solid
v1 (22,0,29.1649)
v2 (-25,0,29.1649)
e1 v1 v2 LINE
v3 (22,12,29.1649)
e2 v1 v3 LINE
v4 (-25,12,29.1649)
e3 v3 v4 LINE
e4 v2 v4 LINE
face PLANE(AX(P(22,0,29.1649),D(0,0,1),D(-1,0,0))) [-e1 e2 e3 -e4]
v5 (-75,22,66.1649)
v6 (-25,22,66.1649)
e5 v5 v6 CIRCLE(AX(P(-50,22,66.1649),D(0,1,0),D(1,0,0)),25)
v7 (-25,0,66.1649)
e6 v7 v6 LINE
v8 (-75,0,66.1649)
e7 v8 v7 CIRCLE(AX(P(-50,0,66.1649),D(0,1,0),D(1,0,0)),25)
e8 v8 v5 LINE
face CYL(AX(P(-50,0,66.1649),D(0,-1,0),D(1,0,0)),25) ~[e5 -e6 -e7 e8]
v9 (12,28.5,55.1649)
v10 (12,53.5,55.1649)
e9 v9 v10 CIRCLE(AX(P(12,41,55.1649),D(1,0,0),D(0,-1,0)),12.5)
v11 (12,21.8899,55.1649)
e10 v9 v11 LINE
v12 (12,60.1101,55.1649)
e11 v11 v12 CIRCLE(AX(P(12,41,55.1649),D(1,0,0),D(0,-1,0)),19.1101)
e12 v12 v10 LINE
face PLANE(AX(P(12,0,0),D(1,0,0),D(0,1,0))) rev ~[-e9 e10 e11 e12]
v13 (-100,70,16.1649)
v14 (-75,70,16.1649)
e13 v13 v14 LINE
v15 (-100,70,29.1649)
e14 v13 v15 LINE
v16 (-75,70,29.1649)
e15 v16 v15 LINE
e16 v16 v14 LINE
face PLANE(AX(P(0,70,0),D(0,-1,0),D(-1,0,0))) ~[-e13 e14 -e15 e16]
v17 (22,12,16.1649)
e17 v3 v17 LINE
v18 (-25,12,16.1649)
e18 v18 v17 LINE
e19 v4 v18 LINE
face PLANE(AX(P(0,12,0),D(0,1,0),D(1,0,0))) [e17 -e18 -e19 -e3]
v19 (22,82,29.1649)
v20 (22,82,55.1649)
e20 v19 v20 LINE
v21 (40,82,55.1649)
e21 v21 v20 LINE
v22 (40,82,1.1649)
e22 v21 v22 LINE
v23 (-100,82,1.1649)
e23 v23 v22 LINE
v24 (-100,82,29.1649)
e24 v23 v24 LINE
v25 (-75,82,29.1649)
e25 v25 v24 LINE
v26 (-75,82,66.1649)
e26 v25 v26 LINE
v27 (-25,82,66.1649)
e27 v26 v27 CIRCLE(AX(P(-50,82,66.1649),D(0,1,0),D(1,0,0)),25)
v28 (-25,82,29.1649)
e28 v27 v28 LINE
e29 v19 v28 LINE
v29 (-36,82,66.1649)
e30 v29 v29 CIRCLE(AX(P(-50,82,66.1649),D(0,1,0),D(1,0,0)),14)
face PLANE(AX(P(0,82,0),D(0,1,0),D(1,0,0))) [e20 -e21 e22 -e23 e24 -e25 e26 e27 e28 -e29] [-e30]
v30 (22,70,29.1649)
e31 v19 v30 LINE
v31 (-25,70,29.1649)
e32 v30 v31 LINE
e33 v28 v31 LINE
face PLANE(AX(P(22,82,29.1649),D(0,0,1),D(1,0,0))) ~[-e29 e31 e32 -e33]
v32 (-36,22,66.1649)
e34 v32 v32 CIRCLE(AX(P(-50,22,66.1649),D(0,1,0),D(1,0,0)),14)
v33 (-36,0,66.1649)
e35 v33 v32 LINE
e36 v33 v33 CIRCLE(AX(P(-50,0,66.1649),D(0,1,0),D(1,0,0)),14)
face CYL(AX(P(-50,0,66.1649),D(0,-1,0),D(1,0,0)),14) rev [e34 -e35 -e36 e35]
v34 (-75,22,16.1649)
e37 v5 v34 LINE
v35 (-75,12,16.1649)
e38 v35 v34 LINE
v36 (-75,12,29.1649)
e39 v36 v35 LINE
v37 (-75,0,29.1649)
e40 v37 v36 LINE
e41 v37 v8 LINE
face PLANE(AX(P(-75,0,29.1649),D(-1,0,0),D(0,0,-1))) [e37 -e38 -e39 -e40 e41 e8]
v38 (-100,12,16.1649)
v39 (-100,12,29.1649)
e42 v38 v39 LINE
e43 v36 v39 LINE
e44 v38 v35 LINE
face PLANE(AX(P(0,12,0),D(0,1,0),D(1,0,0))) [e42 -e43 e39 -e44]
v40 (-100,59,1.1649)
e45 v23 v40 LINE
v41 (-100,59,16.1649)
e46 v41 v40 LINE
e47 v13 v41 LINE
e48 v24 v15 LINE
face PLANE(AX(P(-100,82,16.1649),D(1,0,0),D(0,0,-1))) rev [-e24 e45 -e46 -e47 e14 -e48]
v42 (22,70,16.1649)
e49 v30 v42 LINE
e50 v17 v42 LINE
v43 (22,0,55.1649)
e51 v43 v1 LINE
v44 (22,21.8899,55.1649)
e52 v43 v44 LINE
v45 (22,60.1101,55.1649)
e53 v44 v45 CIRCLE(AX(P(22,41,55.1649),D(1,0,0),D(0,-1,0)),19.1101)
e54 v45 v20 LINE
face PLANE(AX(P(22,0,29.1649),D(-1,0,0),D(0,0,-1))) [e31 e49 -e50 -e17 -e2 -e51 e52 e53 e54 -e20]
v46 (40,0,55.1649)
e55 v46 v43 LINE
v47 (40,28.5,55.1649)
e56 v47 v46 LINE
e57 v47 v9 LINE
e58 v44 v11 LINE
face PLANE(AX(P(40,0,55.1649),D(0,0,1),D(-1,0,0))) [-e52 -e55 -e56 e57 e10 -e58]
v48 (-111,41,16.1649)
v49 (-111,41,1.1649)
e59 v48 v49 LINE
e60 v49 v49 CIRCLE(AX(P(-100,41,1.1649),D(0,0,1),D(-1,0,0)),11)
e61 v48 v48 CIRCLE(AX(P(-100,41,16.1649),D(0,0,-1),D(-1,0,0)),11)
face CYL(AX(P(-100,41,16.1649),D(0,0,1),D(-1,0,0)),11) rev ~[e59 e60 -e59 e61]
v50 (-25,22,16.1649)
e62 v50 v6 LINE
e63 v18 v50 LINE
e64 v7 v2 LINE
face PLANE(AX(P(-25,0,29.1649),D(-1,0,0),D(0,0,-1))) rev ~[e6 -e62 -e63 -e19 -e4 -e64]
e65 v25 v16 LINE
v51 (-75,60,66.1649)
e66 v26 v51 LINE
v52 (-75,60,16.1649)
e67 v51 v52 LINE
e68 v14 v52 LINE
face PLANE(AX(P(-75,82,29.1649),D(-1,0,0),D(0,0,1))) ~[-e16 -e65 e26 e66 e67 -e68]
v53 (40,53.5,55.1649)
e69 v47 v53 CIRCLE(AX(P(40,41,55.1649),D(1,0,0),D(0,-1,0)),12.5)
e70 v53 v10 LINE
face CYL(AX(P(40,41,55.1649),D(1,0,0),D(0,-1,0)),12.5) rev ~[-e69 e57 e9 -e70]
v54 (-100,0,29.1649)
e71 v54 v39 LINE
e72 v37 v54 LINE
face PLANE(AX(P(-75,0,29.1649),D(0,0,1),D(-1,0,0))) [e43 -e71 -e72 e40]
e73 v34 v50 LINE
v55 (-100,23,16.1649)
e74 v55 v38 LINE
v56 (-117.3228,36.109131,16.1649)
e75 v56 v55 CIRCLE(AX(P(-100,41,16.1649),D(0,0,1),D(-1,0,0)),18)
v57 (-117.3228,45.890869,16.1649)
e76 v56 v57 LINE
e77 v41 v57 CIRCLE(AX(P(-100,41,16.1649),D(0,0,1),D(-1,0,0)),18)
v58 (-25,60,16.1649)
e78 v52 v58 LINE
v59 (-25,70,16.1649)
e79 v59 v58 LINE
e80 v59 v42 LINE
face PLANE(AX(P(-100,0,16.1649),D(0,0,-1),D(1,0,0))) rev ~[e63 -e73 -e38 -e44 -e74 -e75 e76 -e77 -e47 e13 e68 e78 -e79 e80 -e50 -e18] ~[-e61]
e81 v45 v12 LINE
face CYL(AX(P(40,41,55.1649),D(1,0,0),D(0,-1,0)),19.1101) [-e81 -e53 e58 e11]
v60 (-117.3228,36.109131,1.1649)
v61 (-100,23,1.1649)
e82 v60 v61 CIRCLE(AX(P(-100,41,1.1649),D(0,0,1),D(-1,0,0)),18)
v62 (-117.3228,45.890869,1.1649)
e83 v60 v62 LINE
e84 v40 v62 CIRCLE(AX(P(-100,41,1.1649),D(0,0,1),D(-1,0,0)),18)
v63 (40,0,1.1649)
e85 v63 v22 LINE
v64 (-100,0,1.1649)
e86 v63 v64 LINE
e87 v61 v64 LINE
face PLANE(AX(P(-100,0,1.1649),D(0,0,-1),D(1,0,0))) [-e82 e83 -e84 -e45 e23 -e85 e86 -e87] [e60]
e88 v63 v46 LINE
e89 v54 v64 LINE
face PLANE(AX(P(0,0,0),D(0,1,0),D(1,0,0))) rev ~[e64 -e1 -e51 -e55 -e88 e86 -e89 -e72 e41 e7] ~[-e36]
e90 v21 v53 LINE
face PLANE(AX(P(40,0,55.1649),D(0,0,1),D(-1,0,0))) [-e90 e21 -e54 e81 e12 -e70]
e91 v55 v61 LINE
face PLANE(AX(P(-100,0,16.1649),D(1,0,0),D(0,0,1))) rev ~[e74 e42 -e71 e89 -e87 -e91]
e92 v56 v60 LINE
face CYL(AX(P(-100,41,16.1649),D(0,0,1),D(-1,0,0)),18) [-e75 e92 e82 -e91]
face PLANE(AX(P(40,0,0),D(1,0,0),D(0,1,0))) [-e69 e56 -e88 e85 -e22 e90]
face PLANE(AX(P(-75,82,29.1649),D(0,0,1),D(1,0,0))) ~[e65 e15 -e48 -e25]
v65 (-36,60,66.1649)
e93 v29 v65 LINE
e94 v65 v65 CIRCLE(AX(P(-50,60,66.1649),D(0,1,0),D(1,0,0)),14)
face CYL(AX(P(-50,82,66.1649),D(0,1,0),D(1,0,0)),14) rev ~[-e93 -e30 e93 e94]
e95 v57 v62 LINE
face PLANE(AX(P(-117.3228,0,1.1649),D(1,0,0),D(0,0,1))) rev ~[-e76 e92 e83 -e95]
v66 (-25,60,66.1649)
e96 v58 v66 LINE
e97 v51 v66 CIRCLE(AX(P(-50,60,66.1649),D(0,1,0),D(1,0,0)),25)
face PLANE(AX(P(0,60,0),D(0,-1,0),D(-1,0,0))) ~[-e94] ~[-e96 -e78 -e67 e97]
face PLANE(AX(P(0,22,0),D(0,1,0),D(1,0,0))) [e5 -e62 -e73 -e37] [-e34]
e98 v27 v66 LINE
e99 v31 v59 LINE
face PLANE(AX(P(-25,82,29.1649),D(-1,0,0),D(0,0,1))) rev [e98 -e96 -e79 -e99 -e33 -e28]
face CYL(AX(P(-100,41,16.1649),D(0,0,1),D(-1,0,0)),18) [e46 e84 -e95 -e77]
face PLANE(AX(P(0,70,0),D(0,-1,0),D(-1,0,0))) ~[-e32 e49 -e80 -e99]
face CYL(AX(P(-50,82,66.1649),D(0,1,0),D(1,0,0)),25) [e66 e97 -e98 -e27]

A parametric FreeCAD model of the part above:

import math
import FreeCAD as App
import Part
import Sketcher
from FreeCAD import Vector
Q = App.Units.Quantity


def add_polygon(sketch, points):
    """Adds a closed chain of lines whose ends are joined by coincident constraints."""
    first, n = sketch.GeometryCount, len(points)
    for a, b in zip(points, points[1:] + points[:1]):
        sketch.addGeometry(Part.LineSegment(App.Vector(*a, 0), App.Vector(*b, 0)), False)
    for i in range(n):
        sketch.addConstraint(Sketcher.Constraint("Coincident", first + i, 2, first + (i + 1) % n, 1))

doc = App.newDocument("Part")
params = doc.addObject("Spreadsheet::Sheet", "Params")
for row, (alias, value) in enumerate([
    ("sketch1_width", "18 mm"),
    ("sketch1_height", "15 mm"),
    ("sketch1_height2", "54 mm"),
    ("pad1_length", "82 mm"),
    ("sketch2_width", "25 mm"),
    ("sketch2_width2", "47 mm"),
    ("sketch2_height", "13 mm"),
    ("pad2_length", "12 mm"),
    ("sketch3_diameter", "28 mm"),
    ("sketch3_radius", "25 mm"),
    ("pad3_length", "22 mm"),
    ("sketch4_radius", "12.5 mm"),
    ("sketch4_radius2", "19.11 mm"),
    ("pad4_length", "28 mm"),
    ("sketch5_radius", "12.5 mm"),
    ("pocket1_length", "28 mm"),
    ("sketch6_radius", "18 mm"),
    ("sketch6_height", "23 mm"),
    ("pocket2_length", "30 mm"),
    ("sketch7_diameter", "22 mm"),
    ("pocket3_length", "25 mm"),
], start=1):
    params.set(f"A{row}", alias)
    params.set(f"B{row}", "=" + value)
    params.setAlias(f"B{row}", alias)

body = doc.addObject("PartDesign::Body", "Body")

# Sketch on XZ plane
sketch1 = doc.addObject("Sketcher::SketchObject", "Sketch")
body.addObject(sketch1)
sketch1.AttachmentSupport = (doc.XZ_Plane, [""])
sketch1.MapMode = "FlatFace"
add_polygon(sketch1, [(-117, 1), (-117, 16), (22, 16), (22, 55), (40, 55), (40, 1)])  # lines 0-5
sketch1.addConstraint(Sketcher.Constraint("Vertical", 0))
sketch1.addConstraint(Sketcher.Constraint("Horizontal", 1))
sketch1.addConstraint(Sketcher.Constraint("Vertical", 2))
sketch1.addConstraint(Sketcher.Constraint("Horizontal", 3))
sketch1.addConstraint(Sketcher.Constraint("Vertical", 4))
sketch1.addConstraint(Sketcher.Constraint("Horizontal", 5))
sketch1.addConstraint(Sketcher.Constraint("DistanceX", 3, 1, 3, 2, Q("18 mm")))
sketch1.addConstraint(Sketcher.Constraint("DistanceY", 0, 1, 0, 2, Q("15 mm")))
sketch1.addConstraint(Sketcher.Constraint("DistanceY", 4, 2, 4, 1, Q("54 mm")))
sketch1.addConstraint(Sketcher.Constraint("DistanceX", -1, 1, 1, 2, Q("22 mm")))
sketch1.addConstraint(Sketcher.Constraint("DistanceX", 1, 1, 1, 2, Q("139.3228 mm")))
sketch1.addConstraint(Sketcher.Constraint("DistanceY", -1, 1, 0, 2, Q("16.165 mm")))
sketch1.setExpression("Constraints[12]", "Params.sketch1_width")
sketch1.setExpression("Constraints[13]", "Params.sketch1_height")
sketch1.setExpression("Constraints[14]", "Params.sketch1_height2")
pad1 = doc.addObject("PartDesign::Pad", "Pad")
body.addObject(pad1)
pad1.Profile = sketch1
pad1.setExpression("Length", "Params.pad1_length")
pad1.Reversed = True

# Sketch on XZ plane
sketch2 = doc.addObject("Sketcher::SketchObject", "Sketch001")
body.addObject(sketch2)
sketch2.AttachmentSupport = (doc.XZ_Plane, [""])
sketch2.MapMode = "FlatFace"
add_polygon(sketch2, [(-75, 16), (-100, 16), (-100, 29), (-75, 29)])  # lines 0-3
add_polygon(sketch2, [(22, 16), (-25, 16), (-25, 29), (22, 29)])  # lines 4-7
sketch2.addConstraint(Sketcher.Constraint("Horizontal", 0))
sketch2.addConstraint(Sketcher.Constraint("Vertical", 1))
sketch2.addConstraint(Sketcher.Constraint("Horizontal", 2))
sketch2.addConstraint(Sketcher.Constraint("Vertical", 3))
sketch2.addConstraint(Sketcher.Constraint("Horizontal", 4))
sketch2.addConstraint(Sketcher.Constraint("Vertical", 5))
sketch2.addConstraint(Sketcher.Constraint("Horizontal", 6))
sketch2.addConstraint(Sketcher.Constraint("Vertical", 7))
sketch2.addConstraint(Sketcher.Constraint("Horizontal", 3, 2, 4, 2))
sketch2.addConstraint(Sketcher.Constraint("Horizontal", 2, 2, 5, 2))
sketch2.addConstraint(Sketcher.Constraint("DistanceX", 3, 2, 4, 2, Q("50 mm")))
sketch2.addConstraint(Sketcher.Constraint("DistanceX", 0, 2, 0, 1, Q("25 mm")))
sketch2.addConstraint(Sketcher.Constraint("DistanceX", 4, 2, 4, 1, Q("47 mm")))
sketch2.addConstraint(Sketcher.Constraint("DistanceY", 1, 1, 1, 2, Q("13 mm")))
sketch2.addConstraint(Sketcher.Constraint("DistanceX", 0, 2, -1, 1, Q("100 mm")))
sketch2.addConstraint(Sketcher.Constraint("DistanceY", -1, 1, 0, 2, Q("16.165 mm")))
sketch2.setExpression("Constraints[19]", "Params.sketch2_width")
sketch2.setExpression("Constraints[20]", "Params.sketch2_width2")
sketch2.setExpression("Constraints[21]", "Params.sketch2_height")
pad2 = doc.addObject("PartDesign::Pad", "Pad001")
body.addObject(pad2)
pad2.Profile = sketch2
pad2.setExpression("Length", "Params.pad2_length")
pad2.Reversed = True

# Sketch on XZ plane
sketch3 = doc.addObject("Sketcher::SketchObject", "Sketch002")
body.addObject(sketch3)
sketch3.AttachmentSupport = (doc.XZ_Plane, [""])
sketch3.MapMode = "FlatFace"
sketch3.addGeometry(Part.LineSegment(Vector(-25, 16, 0), Vector(-75, 16, 0)), False)
sketch3.addGeometry(Part.LineSegment(Vector(-75, 16, 0), Vector(-75, 66, 0)), False)
sketch3.addGeometry(Part.ArcOfCircle(Part.Circle(Vector(-50, 66, 0), Vector(0, 0, 1), 25), math.radians(0), math.radians(180)), False)
sketch3.addGeometry(Part.LineSegment(Vector(-25, 66, 0), Vector(-25, 16, 0)), False)
sketch3.addGeometry(Part.Circle(Vector(-50, 66, 0), Vector(0, 0, 1), 14), False)
sketch3.addConstraint(Sketcher.Constraint("Coincident", 0, 2, 1, 1))
sketch3.addConstraint(Sketcher.Constraint("Tangent", 1, 2, 2, 2))
sketch3.addConstraint(Sketcher.Constraint("Tangent", 2, 1, 3, 1))
sketch3.addConstraint(Sketcher.Constraint("Coincident", 3, 2, 0, 1))
sketch3.addConstraint(Sketcher.Constraint("Horizontal", 0))
sketch3.addConstraint(Sketcher.Constraint("Vertical", 1))
sketch3.addConstraint(Sketcher.Constraint("Vertical", 3))
sketch3.addConstraint(Sketcher.Constraint("Coincident", 4, 3, 2, 3))
sketch3.addConstraint(Sketcher.Constraint("Equal", 0, 1))
sketch3.addConstraint(Sketcher.Constraint("Diameter", 4, Q("28 mm")))
sketch3.addConstraint(Sketcher.Constraint("Radius", 2, Q("25 mm")))
sketch3.addConstraint(Sketcher.Constraint("DistanceX", 2, 3, -1, 1, Q("50 mm")))
sketch3.addConstraint(Sketcher.Constraint("DistanceY", -1, 1, 2, 3, Q("66.165 mm")))
sketch3.setExpression("Constraints[9]", "Params.sketch3_diameter")
sketch3.setExpression("Constraints[10]", "Params.sketch3_radius")
pad3 = doc.addObject("PartDesign::Pad", "Pad002")
body.addObject(pad3)
pad3.Profile = sketch3
pad3.setExpression("Length", "Params.pad3_length")
pad3.Reversed = True
doc.recompute()

datumplane = doc.addObject("PartDesign::Plane", "DatumPlane")
body.addObject(datumplane)
datumplane.AttachmentSupport = (doc.XZ_Plane, [""])
datumplane.MapMode = "FlatFace"
datumplane.AttachmentOffset = App.Placement(Vector(0, 0, -41), App.Rotation())
mirrored = doc.addObject("PartDesign::Mirrored", "Mirrored")
body.addObject(mirrored)
mirrored.Originals = [pad3]
mirrored.MirrorPlane = (datumplane, [""])
body.Tip = mirrored
doc.recompute()

datumplane2 = doc.addObject("PartDesign::Plane", "DatumPlane001")
body.addObject(datumplane2)
datumplane2.AttachmentSupport = (doc.XZ_Plane, [""])
datumplane2.MapMode = "FlatFace"
datumplane2.AttachmentOffset = App.Placement(Vector(0, 0, -41), App.Rotation())
mirrored2 = doc.addObject("PartDesign::Mirrored", "Mirrored001")
body.addObject(mirrored2)
mirrored2.Originals = [pad2]
mirrored2.MirrorPlane = (datumplane2, [""])
body.Tip = mirrored2

# Sketch on YZ plane
sketch4 = doc.addObject("Sketcher::SketchObject", "Sketch003")
body.addObject(sketch4)
sketch4.AttachmentSupport = (doc.YZ_Plane, [""])
sketch4.MapMode = "FlatFace"
sketch4.AttachmentOffset = App.Placement(Vector(0, 0, 40), App.Rotation())
sketch4.addGeometry(Part.LineSegment(Vector(28, 55, 0), Vector(22, 55, 0)), False)
sketch4.addGeometry(Part.ArcOfCircle(Part.Circle(Vector(41, 55, 0), Vector(0, 0, 1), 19), math.radians(180), math.radians(360)), False)
sketch4.addGeometry(Part.LineSegment(Vector(60, 55, 0), Vector(54, 55, 0)), False)
sketch4.addGeometry(Part.ArcOfCircle(Part.Circle(Vector(41, 55, 0), Vector(0, 0, 1), 12), math.radians(180), math.radians(360)), False)
sketch4.addConstraint(Sketcher.Constraint("Coincident", 0, 2, 1, 1))
sketch4.addConstraint(Sketcher.Constraint("Coincident", 1, 2, 2, 1))
sketch4.addConstraint(Sketcher.Constraint("Coincident", 2, 2, 3, 2))
sketch4.addConstraint(Sketcher.Constraint("Coincident", 3, 1, 0, 1))
sketch4.addConstraint(Sketcher.Constraint("Horizontal", 0))
sketch4.addConstraint(Sketcher.Constraint("Horizontal", 2))
sketch4.addConstraint(Sketcher.Constraint("Coincident", 3, 3, 1, 3))
sketch4.addConstraint(Sketcher.Constraint("Horizontal", 3, 3, 0, 2))
sketch4.addConstraint(Sketcher.Constraint("Horizontal", 0, 2, 1, 2))
sketch4.addConstraint(Sketcher.Constraint("Radius", 3, Q("12.5 mm")))
sketch4.addConstraint(Sketcher.Constraint("Radius", 1, Q("19.11 mm")))
sketch4.addConstraint(Sketcher.Constraint("DistanceX", -1, 1, 1, 3, Q("41 mm")))
sketch4.addConstraint(Sketcher.Constraint("DistanceY", -1, 1, 1, 3, Q("55.165 mm")))
sketch4.setExpression("Constraints[9]", "Params.sketch4_radius")
sketch4.setExpression("Constraints[10]", "Params.sketch4_radius2")
pad4 = doc.addObject("PartDesign::Pad", "Pad003")
body.addObject(pad4)
pad4.Profile = sketch4
pad4.setExpression("Length", "Params.pad4_length")
pad4.Reversed = True

# Sketch on YZ plane
sketch5 = doc.addObject("Sketcher::SketchObject", "Sketch004")
body.addObject(sketch5)
sketch5.AttachmentSupport = (doc.YZ_Plane, [""])
sketch5.MapMode = "FlatFace"
sketch5.AttachmentOffset = App.Placement(Vector(0, 0, 40), App.Rotation())
sketch5.addGeometry(Part.LineSegment(Vector(54, 55, 0), Vector(28, 55, 0)), False)
sketch5.addGeometry(Part.ArcOfCircle(Part.Circle(Vector(41, 55, 0), Vector(0, 0, 1), 12), math.radians(180), math.radians(360)), False)
sketch5.addConstraint(Sketcher.Constraint("Coincident", 0, 1, 1, 2))
sketch5.addConstraint(Sketcher.Constraint("Coincident", 1, 1, 0, 2))
sketch5.addConstraint(Sketcher.Constraint("Horizontal", 0))
sketch5.addConstraint(Sketcher.Constraint("Horizontal", 1, 3, 0, 1))
sketch5.addConstraint(Sketcher.Constraint("Radius", 1, Q("12.5 mm")))
sketch5.addConstraint(Sketcher.Constraint("DistanceX", -1, 1, 1, 3, Q("41 mm")))
sketch5.addConstraint(Sketcher.Constraint("DistanceY", -1, 1, 1, 3, Q("55.165 mm")))
sketch5.setExpression("Constraints[4]", "Params.sketch5_radius")
pocket1 = doc.addObject("PartDesign::Pocket", "Pocket")
body.addObject(pocket1)
pocket1.Profile = sketch5
pocket1.setExpression("Length", "Params.pocket1_length")

# Sketch on XY plane
sketch6 = doc.addObject("Sketcher::SketchObject", "Sketch005")
body.addObject(sketch6)
sketch6.AttachmentSupport = (doc.XY_Plane, [""])
sketch6.MapMode = "FlatFace"
sketch6.AttachmentOffset = App.Placement(Vector(0, 0, 16.1649), App.Rotation())
sketch6.addGeometry(Part.LineSegment(Vector(-100, 59, 0), Vector(-100, 82, 0)), False)
sketch6.addGeometry(Part.LineSegment(Vector(-100, 82, 0), Vector(-117, 82, 0)), False)
sketch6.addGeometry(Part.LineSegment(Vector(-117, 82, 0), Vector(-117, 46, 0)), False)
sketch6.addGeometry(Part.ArcOfCircle(Part.Circle(Vector(-100, 41, 0), Vector(0, 0, 1), 18), math.radians(90), math.radians(164)), False)
sketch6.addGeometry(Part.LineSegment(Vector(-100, 0, 0), Vector(-100, 23, 0)), False)
sketch6.addGeometry(Part.ArcOfCircle(Part.Circle(Vector(-100, 41, 0), Vector(0, 0, 1), 18), math.radians(-164), math.radians(-90)), False)
sketch6.addGeometry(Part.LineSegment(Vector(-117, 36, 0), Vector(-117, 0, 0)), False)
sketch6.addGeometry(Part.LineSegment(Vector(-117, 0, 0), Vector(-100, 0, 0)), False)
sketch6.addConstraint(Sketcher.Constraint("Coincident", 0, 2, 1, 1))
sketch6.addConstraint(Sketcher.Constraint("Coincident", 1, 2, 2, 1))
sketch6.addConstraint(Sketcher.Constraint("Coincident", 2, 2, 3, 2))
sketch6.addConstraint(Sketcher.Constraint("Coincident", 3, 1, 0, 1))
sketch6.addConstraint(Sketcher.Constraint("Coincident", 4, 2, 5, 2))
sketch6.addConstraint(Sketcher.Constraint("Coincident", 5, 1, 6, 1))
sketch6.addConstraint(Sketcher.Constraint("Coincident", 6, 2, 7, 1))
sketch6.addConstraint(Sketcher.Constraint("Coincident", 7, 2, 4, 1))
sketch6.addConstraint(Sketcher.Constraint("Vertical", 0))
sketch6.addConstraint(Sketcher.Constraint("Horizontal", 1))
sketch6.addConstraint(Sketcher.Constraint("Vertical", 2))
sketch6.addConstraint(Sketcher.Constraint("Vertical", 4))
sketch6.addConstraint(Sketcher.Constraint("Vertical", 6))
sketch6.addConstraint(Sketcher.Constraint("Horizontal", 7))
sketch6.addConstraint(Sketcher.Constraint("Coincident", 5, 3, 3, 3))
sketch6.addConstraint(Sketcher.Constraint("Equal", 3, 5))
sketch6.addConstraint(Sketcher.Constraint("PointOnObject", 6, 2, -1))
sketch6.addConstraint(Sketcher.Constraint("Vertical", 5, 3, 0, 2))
sketch6.addConstraint(Sketcher.Constraint("Vertical", 3, 1, 4, 2))
sketch6.addConstraint(Sketcher.Constraint("Vertical", 2, 2, 5, 1))
sketch6.addConstraint(Sketcher.Constraint("Equal", 0, 4))
sketch6.addConstraint(Sketcher.Constraint("Radius", 3, Q("18 mm")))
sketch6.addConstraint(Sketcher.Constraint("DistanceY", 0, 1, 0, 2, Q("23 mm")))
sketch6.addConstraint(Sketcher.Constraint("DistanceX", 3, 3, -1, 1, Q("100 mm")))
sketch6.addConstraint(Sketcher.Constraint("DistanceX", 1, 2, 1, 1, Q("17.3228 mm")))
sketch6.setExpression("Constraints[21]", "Params.sketch6_radius")
sketch6.setExpression("Constraints[22]", "Params.sketch6_height")
pocket2 = doc.addObject("PartDesign::Pocket", "Pocket001")
body.addObject(pocket2)
pocket2.Profile = sketch6
pocket2.setExpression("Length", "Params.pocket2_length")

# Sketch on XY plane
sketch7 = doc.addObject("Sketcher::SketchObject", "Sketch006")
body.addObject(sketch7)
sketch7.AttachmentSupport = (doc.XY_Plane, [""])
sketch7.MapMode = "FlatFace"
sketch7.AttachmentOffset = App.Placement(Vector(0, 0, 16.1649), App.Rotation())
sketch7.addGeometry(Part.Circle(Vector(-100, 41, 0), Vector(0, 0, 1), 11), False)
sketch7.addConstraint(Sketcher.Constraint("Diameter", 0, Q("22 mm")))
sketch7.addConstraint(Sketcher.Constraint("DistanceX", 0, 3, -1, 1, Q("100 mm")))
sketch7.addConstraint(Sketcher.Constraint("DistanceY", -1, 1, 0, 3, Q("41 mm")))
sketch7.setExpression("Constraints[0]", "Params.sketch7_diameter")
pocket3 = doc.addObject("PartDesign::Pocket", "Pocket002")
body.addObject(pocket3)
pocket3.Profile = sketch7
pocket3.setExpression("Length", "Params.pocket3_length")

doc.recompute()
